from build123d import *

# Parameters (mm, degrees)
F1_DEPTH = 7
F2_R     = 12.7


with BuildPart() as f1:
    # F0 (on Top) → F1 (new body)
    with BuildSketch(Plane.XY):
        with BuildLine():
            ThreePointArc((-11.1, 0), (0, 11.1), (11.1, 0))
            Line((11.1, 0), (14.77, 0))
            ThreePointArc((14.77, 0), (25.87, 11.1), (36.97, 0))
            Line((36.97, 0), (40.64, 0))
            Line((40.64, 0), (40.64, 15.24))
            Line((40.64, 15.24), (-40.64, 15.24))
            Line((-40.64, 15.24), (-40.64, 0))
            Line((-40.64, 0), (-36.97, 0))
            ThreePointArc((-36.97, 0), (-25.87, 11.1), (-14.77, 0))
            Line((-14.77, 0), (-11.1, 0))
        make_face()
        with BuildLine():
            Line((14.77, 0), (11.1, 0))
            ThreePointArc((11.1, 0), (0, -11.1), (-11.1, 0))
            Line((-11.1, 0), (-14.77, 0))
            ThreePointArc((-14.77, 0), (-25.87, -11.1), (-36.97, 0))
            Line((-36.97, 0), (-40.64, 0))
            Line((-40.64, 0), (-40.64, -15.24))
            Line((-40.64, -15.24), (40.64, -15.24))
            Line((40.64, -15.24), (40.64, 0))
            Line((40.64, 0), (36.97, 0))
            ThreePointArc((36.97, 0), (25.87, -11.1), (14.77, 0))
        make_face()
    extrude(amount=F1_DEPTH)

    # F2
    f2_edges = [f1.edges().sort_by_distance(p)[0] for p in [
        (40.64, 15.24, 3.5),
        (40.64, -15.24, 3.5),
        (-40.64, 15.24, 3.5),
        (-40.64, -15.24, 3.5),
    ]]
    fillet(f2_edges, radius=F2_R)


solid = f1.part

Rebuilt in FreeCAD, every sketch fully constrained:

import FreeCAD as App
import Part
import Sketcher

V = App.Vector
Q = App.Units.Quantity


def edges_at(feature, points):
    """Names of the edges that pass closest to the given points."""
    edges = feature.Shape.Edges
    near = lambda p: min(range(len(edges)), key=lambda i: edges[i].distToShape(Part.Vertex(*p))[0])
    return sorted({f"Edge{near(p) + 1}" for p in points})

doc = App.newDocument("Part")
body = doc.addObject("PartDesign::Body", "Body")

sketch1 = doc.addObject("Sketcher::SketchObject", "Sketch")
body.addObject(sketch1)
sketch1.AttachmentSupport = (doc.XY_Plane, [""])
sketch1.MapMode = "FlatFace"
sketch1.addGeometry(Part.LineSegment(V(41, 15, 0), V(-41, 15, 0)), False)
sketch1.addGeometry(Part.LineSegment(V(-41, 15, 0), V(-41, -15, 0)), False)
sketch1.addGeometry(Part.LineSegment(V(-41, -15, 0), V(41, -15, 0)), False)
sketch1.addGeometry(Part.LineSegment(V(41, -15, 0), V(41, 15, 0)), False)
sketch1.addGeometry(Part.Circle(V(0, 0, 0), V(0, 0, 1), 11), False)
sketch1.addGeometry(Part.Circle(V(26, 0, 0), V(0, 0, 1), 11), False)
sketch1.addGeometry(Part.Circle(V(-26, 0, 0), V(0, 0, 1), 11), False)
sketch1.addConstraint(Sketcher.Constraint("Coincident", 0, 2, 1, 1))
sketch1.addConstraint(Sketcher.Constraint("Coincident", 1, 2, 2, 1))
sketch1.addConstraint(Sketcher.Constraint("Coincident", 2, 2, 3, 1))
sketch1.addConstraint(Sketcher.Constraint("Coincident", 3, 2, 0, 1))
sketch1.addConstraint(Sketcher.Constraint("Horizontal", 0))
sketch1.addConstraint(Sketcher.Constraint("Vertical", 1))
sketch1.addConstraint(Sketcher.Constraint("Horizontal", 2))
sketch1.addConstraint(Sketcher.Constraint("Vertical", 3))
sketch1.addConstraint(Sketcher.Constraint("Coincident", 4, 3, -1, 1))
sketch1.addConstraint(Sketcher.Constraint("Equal", 4, 5))
sketch1.addConstraint(Sketcher.Constraint("Equal", 5, 6))
sketch1.addConstraint(Sketcher.Constraint("Symmetric", 5, 3, 6, 3, -1, 1))
sketch1.addConstraint(Sketcher.Constraint("Symmetric", 0, 2, 2, 2, -1, 1))
sketch1.addConstraint(Sketcher.Constraint("PointOnObject", 5, 3, -1))
sketch1.addConstraint(Sketcher.Constraint("DistanceX", 0, 2, 0, 1, Q("3.2 in")))
sketch1.addConstraint(Sketcher.Constraint("DistanceY", 1, 2, 1, 1, Q("1.2 in")))
sketch1.addConstraint(Sketcher.Constraint("Diameter", 4, Q("22.2 mm")))
sketch1.addConstraint(Sketcher.Constraint("DistanceX", -1, 1, 5, 3, Q("25.87 mm")))
pad1 = doc.addObject("PartDesign::Pad", "Pad")
body.addObject(pad1)
pad1.Profile = sketch1
pad1.Length = 7
doc.recompute()

fillet = doc.addObject("PartDesign::Fillet", "Fillet")
body.addObject(fillet)
fillet.Base = (pad1, edges_at(pad1, [
    (40.64, 15.24, 3.5),
    (40.64, -15.24, 3.5),
    (-40.64, 15.24, 3.5),
    (-40.64, -15.24, 3.5),
]))
fillet.Radius = Q("0.5 in")

doc.recompute()
